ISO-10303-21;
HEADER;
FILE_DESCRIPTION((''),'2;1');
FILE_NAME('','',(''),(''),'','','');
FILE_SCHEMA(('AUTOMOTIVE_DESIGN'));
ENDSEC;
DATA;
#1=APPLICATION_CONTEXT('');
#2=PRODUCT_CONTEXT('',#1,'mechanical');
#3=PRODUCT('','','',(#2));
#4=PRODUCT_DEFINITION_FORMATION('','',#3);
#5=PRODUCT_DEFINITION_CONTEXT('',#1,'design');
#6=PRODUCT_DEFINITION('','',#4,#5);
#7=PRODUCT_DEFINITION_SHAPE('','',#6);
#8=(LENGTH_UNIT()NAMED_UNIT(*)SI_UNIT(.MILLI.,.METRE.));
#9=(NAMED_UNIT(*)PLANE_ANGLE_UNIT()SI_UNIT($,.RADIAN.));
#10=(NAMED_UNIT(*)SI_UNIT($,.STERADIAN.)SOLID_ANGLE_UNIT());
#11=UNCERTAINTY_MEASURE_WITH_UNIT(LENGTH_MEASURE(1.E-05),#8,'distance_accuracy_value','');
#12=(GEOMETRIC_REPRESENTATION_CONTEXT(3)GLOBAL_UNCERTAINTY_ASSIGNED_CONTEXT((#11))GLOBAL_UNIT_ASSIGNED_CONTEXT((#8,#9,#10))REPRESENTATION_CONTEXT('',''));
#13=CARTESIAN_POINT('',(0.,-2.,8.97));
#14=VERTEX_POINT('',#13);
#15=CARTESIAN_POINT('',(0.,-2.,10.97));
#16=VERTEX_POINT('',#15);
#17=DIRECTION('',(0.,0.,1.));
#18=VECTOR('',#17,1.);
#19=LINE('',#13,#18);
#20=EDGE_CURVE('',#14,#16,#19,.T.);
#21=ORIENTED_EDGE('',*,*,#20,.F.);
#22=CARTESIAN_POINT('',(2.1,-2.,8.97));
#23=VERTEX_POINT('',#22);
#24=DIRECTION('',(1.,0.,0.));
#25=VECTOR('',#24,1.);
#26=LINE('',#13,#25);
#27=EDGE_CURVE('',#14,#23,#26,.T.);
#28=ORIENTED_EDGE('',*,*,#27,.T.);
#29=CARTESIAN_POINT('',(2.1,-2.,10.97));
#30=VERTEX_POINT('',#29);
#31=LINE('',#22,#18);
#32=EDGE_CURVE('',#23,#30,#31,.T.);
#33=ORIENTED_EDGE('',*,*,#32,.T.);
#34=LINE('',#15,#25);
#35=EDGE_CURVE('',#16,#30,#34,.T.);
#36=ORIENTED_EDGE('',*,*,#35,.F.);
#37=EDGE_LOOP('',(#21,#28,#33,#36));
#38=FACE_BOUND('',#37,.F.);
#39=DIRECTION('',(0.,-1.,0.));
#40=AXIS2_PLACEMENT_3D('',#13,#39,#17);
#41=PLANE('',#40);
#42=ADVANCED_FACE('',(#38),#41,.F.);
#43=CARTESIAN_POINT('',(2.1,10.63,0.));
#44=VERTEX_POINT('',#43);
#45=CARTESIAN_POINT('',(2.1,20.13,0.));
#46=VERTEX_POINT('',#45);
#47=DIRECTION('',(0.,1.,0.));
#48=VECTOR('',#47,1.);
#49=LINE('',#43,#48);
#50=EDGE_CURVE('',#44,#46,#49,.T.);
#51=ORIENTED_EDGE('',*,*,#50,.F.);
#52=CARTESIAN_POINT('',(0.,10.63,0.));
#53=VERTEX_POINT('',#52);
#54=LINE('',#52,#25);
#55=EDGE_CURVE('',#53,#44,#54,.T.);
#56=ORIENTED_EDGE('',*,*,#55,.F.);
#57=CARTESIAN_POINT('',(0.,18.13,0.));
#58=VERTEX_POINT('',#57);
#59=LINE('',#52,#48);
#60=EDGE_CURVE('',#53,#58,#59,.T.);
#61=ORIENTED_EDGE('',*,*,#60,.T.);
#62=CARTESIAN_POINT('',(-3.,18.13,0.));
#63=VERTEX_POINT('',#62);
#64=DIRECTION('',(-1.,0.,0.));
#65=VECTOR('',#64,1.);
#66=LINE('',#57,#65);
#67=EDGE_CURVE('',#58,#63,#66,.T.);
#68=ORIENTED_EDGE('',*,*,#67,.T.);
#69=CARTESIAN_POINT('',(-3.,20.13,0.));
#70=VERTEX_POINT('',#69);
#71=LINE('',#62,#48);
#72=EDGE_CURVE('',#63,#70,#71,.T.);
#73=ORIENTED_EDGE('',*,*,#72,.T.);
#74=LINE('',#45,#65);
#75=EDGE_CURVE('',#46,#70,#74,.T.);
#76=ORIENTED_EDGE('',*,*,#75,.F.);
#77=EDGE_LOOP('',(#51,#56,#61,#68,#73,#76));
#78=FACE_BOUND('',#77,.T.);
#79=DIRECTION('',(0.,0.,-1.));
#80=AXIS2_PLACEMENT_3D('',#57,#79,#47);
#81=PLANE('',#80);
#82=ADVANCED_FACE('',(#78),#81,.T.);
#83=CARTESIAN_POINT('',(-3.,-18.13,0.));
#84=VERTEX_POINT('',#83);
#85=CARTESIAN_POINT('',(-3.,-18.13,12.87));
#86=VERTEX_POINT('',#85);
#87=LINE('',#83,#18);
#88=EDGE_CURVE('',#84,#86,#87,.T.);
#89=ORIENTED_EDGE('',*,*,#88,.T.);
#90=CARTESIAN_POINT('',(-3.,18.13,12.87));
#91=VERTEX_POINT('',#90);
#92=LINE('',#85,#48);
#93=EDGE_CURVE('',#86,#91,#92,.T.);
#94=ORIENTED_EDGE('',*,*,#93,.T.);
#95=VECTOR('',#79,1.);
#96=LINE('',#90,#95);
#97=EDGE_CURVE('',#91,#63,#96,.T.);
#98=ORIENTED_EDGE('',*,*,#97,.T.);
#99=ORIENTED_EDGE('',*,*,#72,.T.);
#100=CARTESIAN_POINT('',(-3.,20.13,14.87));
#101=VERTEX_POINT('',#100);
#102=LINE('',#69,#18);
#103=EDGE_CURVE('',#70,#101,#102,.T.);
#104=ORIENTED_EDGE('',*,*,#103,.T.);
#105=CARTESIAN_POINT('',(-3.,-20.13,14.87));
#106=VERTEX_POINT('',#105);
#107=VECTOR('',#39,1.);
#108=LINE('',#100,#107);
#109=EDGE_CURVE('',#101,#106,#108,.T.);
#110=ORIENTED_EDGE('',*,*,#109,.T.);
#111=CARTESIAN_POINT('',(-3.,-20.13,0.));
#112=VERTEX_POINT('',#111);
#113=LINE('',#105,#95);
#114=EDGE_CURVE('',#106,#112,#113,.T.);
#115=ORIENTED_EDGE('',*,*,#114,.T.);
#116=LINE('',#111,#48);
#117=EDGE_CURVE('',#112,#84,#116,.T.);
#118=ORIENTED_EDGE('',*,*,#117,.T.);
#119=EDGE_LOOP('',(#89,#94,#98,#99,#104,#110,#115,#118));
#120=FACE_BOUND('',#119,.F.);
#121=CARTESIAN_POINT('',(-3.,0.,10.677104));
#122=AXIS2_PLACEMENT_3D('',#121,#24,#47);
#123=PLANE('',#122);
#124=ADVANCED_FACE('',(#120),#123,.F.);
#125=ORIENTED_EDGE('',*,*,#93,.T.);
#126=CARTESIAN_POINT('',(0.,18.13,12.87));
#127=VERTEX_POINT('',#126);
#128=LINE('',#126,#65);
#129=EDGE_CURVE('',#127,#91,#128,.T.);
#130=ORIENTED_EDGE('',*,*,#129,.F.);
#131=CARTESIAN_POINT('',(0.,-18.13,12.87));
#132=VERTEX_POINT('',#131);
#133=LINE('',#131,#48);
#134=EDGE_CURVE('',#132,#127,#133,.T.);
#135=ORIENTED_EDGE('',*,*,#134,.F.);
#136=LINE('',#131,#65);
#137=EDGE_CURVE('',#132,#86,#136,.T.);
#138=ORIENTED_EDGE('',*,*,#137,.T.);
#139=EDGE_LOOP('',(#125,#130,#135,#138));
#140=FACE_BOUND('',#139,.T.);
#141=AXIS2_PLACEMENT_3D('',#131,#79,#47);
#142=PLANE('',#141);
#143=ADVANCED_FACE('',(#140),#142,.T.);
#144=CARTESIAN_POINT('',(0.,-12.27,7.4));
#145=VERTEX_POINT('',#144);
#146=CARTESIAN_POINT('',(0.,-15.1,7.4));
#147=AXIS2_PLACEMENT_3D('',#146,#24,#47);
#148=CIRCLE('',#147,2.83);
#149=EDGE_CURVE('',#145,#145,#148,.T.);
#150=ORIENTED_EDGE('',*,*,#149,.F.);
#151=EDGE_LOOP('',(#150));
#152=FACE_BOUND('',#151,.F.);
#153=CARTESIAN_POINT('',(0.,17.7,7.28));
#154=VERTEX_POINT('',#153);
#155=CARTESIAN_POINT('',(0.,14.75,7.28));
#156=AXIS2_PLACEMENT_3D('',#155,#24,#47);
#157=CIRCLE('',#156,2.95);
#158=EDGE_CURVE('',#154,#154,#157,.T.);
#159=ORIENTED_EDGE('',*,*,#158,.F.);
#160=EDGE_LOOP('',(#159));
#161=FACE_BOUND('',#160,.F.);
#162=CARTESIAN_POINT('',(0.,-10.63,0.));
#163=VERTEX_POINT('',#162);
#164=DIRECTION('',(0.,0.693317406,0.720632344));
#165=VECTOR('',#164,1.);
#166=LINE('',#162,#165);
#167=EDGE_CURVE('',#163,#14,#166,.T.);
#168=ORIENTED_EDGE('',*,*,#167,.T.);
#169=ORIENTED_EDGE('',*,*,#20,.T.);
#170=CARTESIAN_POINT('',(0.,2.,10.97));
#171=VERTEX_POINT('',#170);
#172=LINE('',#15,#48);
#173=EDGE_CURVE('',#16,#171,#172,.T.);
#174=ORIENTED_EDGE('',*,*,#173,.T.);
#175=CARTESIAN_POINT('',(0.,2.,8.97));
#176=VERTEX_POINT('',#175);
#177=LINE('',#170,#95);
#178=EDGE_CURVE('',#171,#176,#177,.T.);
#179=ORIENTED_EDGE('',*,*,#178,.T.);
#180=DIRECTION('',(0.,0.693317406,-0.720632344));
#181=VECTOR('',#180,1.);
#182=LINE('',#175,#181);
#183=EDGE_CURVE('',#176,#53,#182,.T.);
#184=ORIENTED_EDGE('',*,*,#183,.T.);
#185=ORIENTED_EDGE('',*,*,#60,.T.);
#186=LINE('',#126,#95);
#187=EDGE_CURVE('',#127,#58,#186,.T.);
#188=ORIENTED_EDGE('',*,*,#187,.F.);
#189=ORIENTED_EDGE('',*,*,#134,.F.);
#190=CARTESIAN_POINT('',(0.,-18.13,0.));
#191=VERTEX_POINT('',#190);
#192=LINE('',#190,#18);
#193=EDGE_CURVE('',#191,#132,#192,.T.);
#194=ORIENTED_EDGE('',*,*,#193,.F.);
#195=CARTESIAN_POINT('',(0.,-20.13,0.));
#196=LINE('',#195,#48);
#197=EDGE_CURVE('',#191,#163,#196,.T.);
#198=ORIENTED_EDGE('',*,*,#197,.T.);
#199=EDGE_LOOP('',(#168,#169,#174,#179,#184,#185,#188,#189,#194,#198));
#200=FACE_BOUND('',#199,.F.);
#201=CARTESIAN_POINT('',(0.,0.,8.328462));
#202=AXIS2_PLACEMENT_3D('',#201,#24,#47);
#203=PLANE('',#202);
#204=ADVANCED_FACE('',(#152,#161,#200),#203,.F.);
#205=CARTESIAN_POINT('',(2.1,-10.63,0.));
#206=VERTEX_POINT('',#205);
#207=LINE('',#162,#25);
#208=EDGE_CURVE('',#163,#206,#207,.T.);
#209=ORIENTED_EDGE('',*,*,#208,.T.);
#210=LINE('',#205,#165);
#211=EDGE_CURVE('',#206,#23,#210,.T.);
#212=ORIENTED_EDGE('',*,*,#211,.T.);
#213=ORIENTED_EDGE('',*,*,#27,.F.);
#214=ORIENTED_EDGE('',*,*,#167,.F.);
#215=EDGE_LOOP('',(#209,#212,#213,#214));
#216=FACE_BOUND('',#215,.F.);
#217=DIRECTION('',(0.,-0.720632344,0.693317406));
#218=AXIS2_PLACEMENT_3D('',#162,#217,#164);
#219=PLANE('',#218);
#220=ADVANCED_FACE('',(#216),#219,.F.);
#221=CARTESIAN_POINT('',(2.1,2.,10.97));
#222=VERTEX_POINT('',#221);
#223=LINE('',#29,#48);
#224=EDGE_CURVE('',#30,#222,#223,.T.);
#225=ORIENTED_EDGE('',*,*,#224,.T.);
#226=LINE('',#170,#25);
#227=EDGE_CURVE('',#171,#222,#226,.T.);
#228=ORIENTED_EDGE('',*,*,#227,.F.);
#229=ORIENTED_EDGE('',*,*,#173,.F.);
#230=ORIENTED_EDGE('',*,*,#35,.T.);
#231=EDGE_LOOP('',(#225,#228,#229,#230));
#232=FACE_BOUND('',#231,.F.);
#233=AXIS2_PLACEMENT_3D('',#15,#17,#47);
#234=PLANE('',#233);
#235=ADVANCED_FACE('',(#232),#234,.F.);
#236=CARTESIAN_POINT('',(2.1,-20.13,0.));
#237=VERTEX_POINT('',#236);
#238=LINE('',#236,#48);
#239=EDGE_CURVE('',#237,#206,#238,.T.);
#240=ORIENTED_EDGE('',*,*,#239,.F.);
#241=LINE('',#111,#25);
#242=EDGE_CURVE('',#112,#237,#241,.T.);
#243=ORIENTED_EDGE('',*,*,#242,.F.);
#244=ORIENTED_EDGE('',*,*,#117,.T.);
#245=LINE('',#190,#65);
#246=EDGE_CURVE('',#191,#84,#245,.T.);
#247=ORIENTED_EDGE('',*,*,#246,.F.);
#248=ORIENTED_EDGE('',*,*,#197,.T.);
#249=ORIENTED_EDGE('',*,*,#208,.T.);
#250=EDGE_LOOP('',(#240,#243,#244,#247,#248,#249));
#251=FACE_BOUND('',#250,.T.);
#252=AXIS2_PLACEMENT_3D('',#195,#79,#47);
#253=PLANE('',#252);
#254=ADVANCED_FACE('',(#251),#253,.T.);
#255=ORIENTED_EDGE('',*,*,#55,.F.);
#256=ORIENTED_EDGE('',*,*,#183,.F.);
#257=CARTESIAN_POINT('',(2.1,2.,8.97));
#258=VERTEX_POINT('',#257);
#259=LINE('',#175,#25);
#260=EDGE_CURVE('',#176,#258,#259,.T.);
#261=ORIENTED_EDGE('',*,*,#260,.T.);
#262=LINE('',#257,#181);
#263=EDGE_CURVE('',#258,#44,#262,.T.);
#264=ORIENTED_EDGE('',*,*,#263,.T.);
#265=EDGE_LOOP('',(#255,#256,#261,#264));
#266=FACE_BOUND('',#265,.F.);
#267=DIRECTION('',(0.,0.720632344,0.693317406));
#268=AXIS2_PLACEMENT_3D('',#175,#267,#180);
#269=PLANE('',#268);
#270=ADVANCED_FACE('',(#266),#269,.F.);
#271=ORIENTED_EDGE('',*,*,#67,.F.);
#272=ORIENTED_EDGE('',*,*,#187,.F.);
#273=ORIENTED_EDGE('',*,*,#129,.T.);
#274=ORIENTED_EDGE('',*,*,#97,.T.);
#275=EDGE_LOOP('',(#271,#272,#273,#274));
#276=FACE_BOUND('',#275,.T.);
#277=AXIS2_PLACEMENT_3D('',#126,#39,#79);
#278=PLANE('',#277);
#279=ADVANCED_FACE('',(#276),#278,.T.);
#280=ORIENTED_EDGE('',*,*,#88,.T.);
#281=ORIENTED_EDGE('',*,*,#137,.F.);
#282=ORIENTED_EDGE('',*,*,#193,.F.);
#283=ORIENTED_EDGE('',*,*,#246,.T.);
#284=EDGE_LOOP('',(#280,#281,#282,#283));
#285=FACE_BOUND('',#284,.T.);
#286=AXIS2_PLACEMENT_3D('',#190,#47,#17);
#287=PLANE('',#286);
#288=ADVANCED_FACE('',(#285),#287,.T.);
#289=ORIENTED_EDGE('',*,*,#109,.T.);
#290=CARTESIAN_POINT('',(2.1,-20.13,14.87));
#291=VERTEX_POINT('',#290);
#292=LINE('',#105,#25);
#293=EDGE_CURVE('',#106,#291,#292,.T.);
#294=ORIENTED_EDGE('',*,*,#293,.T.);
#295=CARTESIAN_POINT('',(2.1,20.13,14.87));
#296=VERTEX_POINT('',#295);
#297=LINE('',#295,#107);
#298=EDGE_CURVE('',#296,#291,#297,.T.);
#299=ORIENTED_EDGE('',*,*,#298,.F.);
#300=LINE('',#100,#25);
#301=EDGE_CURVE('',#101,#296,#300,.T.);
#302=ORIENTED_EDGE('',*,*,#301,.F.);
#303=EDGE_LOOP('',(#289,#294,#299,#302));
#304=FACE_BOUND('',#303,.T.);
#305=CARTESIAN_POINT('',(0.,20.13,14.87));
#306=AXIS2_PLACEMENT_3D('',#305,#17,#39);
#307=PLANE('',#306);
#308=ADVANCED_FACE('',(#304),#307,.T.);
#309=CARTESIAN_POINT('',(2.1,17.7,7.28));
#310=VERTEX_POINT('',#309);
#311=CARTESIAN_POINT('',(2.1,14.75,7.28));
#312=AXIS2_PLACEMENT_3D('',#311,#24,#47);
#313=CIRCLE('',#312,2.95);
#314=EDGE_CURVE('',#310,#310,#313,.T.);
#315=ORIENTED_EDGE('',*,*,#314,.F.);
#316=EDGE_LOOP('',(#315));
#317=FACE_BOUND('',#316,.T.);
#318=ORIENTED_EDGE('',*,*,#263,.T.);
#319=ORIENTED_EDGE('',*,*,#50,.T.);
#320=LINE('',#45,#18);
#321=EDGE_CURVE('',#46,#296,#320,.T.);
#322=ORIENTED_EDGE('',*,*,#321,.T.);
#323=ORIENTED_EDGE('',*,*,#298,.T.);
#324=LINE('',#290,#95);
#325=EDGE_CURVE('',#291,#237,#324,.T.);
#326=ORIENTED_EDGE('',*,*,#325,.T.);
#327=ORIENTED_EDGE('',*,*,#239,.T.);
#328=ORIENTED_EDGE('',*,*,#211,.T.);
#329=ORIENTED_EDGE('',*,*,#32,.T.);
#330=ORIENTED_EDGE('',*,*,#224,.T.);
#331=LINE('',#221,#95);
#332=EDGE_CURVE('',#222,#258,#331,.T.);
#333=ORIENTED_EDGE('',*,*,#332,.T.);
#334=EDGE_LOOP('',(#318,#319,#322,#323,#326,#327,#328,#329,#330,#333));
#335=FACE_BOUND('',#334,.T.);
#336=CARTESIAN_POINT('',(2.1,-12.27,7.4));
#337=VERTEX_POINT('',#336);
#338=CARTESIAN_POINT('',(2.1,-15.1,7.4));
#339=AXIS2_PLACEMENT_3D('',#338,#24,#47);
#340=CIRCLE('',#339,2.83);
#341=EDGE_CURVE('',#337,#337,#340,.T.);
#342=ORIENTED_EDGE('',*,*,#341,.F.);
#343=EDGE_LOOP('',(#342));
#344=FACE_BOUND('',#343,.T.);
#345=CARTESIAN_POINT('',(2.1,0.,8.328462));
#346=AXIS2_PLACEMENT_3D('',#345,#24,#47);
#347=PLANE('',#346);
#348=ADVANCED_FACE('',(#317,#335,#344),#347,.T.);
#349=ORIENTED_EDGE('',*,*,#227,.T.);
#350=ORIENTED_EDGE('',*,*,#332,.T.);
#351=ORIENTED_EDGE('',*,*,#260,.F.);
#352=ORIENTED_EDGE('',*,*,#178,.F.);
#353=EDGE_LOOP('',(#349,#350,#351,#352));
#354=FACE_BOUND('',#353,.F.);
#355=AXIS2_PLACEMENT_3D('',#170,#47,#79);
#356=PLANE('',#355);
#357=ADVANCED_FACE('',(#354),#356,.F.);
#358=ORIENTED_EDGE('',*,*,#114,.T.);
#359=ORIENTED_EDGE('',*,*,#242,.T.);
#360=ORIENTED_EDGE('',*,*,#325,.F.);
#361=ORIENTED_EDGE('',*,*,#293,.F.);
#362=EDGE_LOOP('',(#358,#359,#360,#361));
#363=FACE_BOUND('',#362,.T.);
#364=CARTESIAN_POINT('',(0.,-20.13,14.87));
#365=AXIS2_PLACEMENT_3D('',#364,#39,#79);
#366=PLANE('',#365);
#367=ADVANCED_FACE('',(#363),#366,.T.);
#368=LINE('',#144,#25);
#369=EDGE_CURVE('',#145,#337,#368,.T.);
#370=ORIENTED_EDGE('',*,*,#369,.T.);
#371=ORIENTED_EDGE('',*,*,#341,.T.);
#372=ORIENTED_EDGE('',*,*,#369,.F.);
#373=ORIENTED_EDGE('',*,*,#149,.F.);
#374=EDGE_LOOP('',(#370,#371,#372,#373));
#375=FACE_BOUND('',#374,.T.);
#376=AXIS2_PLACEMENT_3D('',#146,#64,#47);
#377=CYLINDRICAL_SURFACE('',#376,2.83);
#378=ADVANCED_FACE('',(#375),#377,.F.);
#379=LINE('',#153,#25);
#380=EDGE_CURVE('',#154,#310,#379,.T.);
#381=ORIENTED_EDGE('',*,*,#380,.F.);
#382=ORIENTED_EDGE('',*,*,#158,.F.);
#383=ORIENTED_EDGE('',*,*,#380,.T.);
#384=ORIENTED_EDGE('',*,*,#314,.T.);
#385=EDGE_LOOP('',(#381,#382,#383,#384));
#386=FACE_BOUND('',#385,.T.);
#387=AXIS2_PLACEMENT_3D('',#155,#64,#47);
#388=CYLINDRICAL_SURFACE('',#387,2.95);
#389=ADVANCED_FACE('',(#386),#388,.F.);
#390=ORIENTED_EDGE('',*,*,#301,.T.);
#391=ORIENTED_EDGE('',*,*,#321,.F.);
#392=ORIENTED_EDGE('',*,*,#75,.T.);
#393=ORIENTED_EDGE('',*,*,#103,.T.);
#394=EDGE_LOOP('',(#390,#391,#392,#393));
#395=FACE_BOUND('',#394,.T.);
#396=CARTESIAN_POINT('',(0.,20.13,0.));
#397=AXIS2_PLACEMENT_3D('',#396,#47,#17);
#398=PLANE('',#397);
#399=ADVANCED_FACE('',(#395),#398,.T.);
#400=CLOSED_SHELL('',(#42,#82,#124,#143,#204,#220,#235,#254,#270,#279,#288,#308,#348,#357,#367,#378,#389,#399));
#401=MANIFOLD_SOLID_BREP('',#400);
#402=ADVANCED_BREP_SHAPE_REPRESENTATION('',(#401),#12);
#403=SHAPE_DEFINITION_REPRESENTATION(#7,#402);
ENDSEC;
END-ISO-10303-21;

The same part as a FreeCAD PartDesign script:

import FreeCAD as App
import Part
import Sketcher
from FreeCAD import Vector


def add_polygon(sketch, points):
    """Adds a closed chain of lines whose ends are joined by coincident constraints."""
    first, n = sketch.GeometryCount, len(points)
    for a, b in zip(points, points[1:] + points[:1]):
        sketch.addGeometry(Part.LineSegment(App.Vector(*a, 0), App.Vector(*b, 0)), False)
    for i in range(n):
        sketch.addConstraint(Sketcher.Constraint("Coincident", first + i, 2, first + (i + 1) % n, 1))

doc = App.newDocument("Part")
body = doc.addObject("PartDesign::Body", "Body")

# Sketch on YZ plane
sketch1 = body.newObject("Sketcher::SketchObject", "Sketch")
sketch1.AttachmentSupport = (doc.getObject("YZ_Plane"), [""])
sketch1.MapMode = "FlatFace"
add_polygon(sketch1, [(20.1, 14.9), (-20.1, 14.9), (-20.1, 0), (-10.6, 0), (-2, 9), (-2, 11), (2, 11), (2, 9), (10.6, 0), (20.1, 0)])  # lines 0-9
sketch1.addGeometry(Part.Circle(Vector(14.8, 7.3, 0), Vector(0, 0, 1), 3), False)  # 10
sketch1.addGeometry(Part.Circle(Vector(-15.1, 7.4, 0), Vector(0, 0, 1), 2.8), False)  # 11
sketch1.addConstraint([
    Sketcher.Constraint("Horizontal", 0),
    Sketcher.Constraint("Vertical", 1),
    Sketcher.Constraint("Horizontal", 2),
    Sketcher.Constraint("Vertical", 4),
    Sketcher.Constraint("Horizontal", 5),
    Sketcher.Constraint("Vertical", 6),
    Sketcher.Constraint("Horizontal", 8),
    Sketcher.Constraint("Vertical", 9),
    Sketcher.Constraint("Symmetric", 2, 2, 7, 2, -1, 1),
    Sketcher.Constraint("Symmetric", 3, 2, 6, 2, -2),
    Sketcher.Constraint("Symmetric", 1, 2, 8, 2, -2),
    Sketcher.Constraint("Diameter", 10, 5.9),
    Sketcher.Constraint("Diameter", 11, 5.66),
    Sketcher.Constraint("DistanceX", 5, 1, 5, 2, 4.0),
    Sketcher.Constraint("DistanceY", 4, 1, 4, 2, 2.0),
    Sketcher.Constraint("DistanceX", 2, 1, 2, 2, 9.5),
    Sketcher.Constraint("DistanceX", 0, 2, 0, 1, 40.26),
    Sketcher.Constraint("DistanceY", 1, 2, 1, 1, 14.87),
    Sketcher.Constraint("DistanceX", 11, 3, -1, 1, 15.1),
    Sketcher.Constraint("DistanceY", -1, 1, 11, 3, 7.4),
    Sketcher.Constraint("DistanceY", 3, 2, 0, 2, 5.9),
    Sketcher.Constraint("DistanceX", -1, 1, 10, 3, 14.75),
    Sketcher.Constraint("DistanceY", -1, 1, 10, 3, 7.28),
])
pad1 = body.newObject("PartDesign::Pad", "Pad")
pad1.Profile = sketch1
pad1.Length = 2.1

# Sketch on YZ plane
sketch2 = body.newObject("Sketcher::SketchObject", "Sketch001")
sketch2.AttachmentSupport = (doc.getObject("YZ_Plane"), [""])
sketch2.MapMode = "FlatFace"
add_polygon(sketch2, [(20.1, 0), (20.1, 14.9), (-20.1, 14.9), (-20.1, 0), (-18.1, 0), (-18.1, 12.9), (18.1, 12.9), (18.1, 0)])  # lines 0-7
sketch2.addConstraint([
    Sketcher.Constraint("Vertical", 0),
    Sketcher.Constraint("Horizontal", 1),
    Sketcher.Constraint("Vertical", 2),
    Sketcher.Constraint("Horizontal", 3),
    Sketcher.Constraint("Vertical", 4),
    Sketcher.Constraint("Horizontal", 5),
    Sketcher.Constraint("Vertical", 6),
    Sketcher.Constraint("Horizontal", 7),
    Sketcher.Constraint("Symmetric", 3, 2, 6, 2, -1, 1),
    Sketcher.Constraint("Symmetric", 2, 2, 7, 2, -2),
    Sketcher.Constraint("DistanceX", 3, 1, 3, 2, 2.0),
    Sketcher.Constraint("DistanceY", 4, 2, 1, 2, 2.0),
    Sketcher.Constraint("DistanceX", 1, 2, 1, 1, 40.26),
    Sketcher.Constraint("DistanceY", 0, 1, 0, 2, 14.87),
])
pad2 = body.newObject("PartDesign::Pad", "Pad001")
pad2.Profile = sketch2
pad2.Length = 3
pad2.Reversed = True

doc.recompute()
